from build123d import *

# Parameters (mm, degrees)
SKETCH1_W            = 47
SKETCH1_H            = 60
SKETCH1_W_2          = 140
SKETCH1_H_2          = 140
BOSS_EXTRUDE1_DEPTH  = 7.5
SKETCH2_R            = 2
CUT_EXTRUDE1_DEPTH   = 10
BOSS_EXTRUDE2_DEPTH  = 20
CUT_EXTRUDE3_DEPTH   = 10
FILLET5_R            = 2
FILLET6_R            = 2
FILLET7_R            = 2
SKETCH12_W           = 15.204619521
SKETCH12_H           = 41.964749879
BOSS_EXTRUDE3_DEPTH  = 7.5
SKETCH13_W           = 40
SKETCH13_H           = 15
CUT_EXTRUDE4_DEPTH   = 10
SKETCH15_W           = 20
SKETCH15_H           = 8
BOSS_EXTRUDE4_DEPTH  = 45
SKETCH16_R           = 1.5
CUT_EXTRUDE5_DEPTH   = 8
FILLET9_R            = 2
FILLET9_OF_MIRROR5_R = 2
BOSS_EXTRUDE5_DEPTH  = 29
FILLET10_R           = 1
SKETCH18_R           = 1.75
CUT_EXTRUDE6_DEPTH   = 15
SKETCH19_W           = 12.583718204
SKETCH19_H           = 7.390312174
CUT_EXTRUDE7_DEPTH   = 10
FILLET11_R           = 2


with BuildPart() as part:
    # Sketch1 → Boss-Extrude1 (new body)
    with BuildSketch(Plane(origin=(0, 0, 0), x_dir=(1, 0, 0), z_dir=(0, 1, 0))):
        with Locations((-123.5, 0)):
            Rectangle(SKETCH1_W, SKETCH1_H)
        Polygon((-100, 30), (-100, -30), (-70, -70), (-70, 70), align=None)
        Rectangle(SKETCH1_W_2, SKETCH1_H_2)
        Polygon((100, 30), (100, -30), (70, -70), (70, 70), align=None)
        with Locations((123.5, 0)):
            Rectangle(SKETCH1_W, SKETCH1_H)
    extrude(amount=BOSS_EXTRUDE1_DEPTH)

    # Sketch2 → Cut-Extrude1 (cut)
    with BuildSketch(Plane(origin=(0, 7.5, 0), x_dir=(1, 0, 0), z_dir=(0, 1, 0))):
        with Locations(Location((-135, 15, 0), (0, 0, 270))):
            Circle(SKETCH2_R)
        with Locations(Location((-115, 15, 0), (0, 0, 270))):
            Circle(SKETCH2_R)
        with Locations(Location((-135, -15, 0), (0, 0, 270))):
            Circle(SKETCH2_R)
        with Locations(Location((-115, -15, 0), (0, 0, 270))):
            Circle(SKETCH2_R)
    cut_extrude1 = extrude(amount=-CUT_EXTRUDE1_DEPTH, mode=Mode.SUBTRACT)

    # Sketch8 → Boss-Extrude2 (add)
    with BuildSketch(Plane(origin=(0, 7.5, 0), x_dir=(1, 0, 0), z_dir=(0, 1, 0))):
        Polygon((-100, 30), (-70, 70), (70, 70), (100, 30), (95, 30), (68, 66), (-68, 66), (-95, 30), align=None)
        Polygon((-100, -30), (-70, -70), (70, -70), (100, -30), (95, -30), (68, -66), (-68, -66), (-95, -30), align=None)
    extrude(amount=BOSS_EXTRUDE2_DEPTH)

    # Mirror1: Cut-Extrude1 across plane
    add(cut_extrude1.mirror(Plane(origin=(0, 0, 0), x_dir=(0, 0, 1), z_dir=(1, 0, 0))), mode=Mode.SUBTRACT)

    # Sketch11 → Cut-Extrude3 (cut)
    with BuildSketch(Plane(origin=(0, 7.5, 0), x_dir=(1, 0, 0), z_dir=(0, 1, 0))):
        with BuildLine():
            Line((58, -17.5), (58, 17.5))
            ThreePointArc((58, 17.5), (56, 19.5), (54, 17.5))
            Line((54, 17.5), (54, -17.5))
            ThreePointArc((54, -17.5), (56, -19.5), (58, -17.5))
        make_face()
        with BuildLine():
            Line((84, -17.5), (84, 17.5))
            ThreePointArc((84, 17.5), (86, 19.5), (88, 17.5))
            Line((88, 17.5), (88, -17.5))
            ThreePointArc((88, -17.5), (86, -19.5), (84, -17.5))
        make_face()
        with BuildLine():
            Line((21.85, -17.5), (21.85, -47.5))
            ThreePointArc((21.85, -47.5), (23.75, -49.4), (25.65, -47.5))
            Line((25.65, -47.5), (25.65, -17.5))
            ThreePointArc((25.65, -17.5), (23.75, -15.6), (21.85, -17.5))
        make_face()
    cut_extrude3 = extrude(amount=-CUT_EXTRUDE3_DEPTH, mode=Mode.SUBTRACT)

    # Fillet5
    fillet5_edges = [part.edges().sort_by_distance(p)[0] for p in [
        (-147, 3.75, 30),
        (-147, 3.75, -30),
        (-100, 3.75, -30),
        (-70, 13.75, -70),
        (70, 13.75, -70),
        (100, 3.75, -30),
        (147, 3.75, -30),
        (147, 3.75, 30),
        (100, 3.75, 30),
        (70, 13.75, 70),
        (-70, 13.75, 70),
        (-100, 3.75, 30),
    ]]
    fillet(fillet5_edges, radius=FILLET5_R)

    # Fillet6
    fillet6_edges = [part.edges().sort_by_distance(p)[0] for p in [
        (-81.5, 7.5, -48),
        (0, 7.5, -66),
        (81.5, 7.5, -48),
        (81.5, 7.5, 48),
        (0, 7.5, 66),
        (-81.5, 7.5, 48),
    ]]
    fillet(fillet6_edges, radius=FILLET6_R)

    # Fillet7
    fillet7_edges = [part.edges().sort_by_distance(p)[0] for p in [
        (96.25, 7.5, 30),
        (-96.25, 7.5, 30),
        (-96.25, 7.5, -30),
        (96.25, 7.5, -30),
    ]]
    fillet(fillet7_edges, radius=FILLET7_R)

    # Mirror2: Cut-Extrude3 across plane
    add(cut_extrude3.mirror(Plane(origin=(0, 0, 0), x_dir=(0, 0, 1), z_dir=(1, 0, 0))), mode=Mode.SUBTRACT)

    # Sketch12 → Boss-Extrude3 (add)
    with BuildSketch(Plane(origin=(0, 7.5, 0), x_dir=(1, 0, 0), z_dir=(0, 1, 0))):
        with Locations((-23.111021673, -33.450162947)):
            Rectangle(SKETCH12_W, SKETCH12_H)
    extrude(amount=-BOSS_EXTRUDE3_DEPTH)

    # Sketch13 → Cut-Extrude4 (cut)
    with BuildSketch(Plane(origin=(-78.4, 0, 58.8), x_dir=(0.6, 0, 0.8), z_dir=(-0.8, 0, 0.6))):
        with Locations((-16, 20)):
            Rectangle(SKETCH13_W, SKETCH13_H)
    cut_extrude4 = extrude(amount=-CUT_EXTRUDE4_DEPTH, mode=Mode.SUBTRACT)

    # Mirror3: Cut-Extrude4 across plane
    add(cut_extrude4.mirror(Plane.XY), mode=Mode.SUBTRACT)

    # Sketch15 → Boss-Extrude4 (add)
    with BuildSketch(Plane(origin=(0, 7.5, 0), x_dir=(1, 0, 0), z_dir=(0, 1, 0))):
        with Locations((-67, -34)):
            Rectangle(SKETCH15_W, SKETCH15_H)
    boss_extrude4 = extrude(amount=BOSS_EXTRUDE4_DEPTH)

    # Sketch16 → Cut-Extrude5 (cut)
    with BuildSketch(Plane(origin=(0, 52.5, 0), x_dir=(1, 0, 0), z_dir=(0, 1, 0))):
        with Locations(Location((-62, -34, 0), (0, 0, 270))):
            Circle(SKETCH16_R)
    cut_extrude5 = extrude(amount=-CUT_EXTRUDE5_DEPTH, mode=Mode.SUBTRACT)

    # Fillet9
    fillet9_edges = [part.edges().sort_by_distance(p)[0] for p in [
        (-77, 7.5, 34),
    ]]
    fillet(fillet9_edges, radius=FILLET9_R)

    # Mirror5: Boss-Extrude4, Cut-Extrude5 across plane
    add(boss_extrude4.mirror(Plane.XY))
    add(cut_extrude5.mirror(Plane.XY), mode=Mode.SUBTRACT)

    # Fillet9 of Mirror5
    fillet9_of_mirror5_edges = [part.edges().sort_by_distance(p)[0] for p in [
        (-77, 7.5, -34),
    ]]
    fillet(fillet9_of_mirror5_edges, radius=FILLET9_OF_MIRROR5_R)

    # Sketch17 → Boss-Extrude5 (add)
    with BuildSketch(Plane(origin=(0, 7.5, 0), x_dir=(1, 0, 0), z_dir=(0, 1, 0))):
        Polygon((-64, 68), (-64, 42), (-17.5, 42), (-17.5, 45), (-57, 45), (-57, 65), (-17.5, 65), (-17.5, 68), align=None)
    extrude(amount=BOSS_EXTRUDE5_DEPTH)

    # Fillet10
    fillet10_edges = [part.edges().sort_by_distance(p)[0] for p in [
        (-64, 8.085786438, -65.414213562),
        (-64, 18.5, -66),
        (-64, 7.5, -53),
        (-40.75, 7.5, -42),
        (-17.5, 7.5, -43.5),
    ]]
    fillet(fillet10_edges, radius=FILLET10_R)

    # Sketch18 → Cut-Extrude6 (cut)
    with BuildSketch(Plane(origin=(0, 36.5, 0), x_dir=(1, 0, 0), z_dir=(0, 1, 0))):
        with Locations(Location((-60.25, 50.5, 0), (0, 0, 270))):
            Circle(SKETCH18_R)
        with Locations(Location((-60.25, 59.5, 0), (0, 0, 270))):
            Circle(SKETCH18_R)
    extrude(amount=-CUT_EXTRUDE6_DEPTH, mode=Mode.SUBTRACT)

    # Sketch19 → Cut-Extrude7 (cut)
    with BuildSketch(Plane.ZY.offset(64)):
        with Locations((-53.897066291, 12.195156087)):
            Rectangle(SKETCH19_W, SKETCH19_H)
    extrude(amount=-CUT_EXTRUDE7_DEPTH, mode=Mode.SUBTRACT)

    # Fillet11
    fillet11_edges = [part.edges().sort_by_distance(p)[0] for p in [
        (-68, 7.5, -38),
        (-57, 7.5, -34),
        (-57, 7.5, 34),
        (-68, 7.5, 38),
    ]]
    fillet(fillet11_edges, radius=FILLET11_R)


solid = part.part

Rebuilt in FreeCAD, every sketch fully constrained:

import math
import FreeCAD as App
import Part
import Sketcher
Q = App.Units.Quantity


def edges_at(feature, points):
    """Names of the edges that pass closest to the given points."""
    edges = feature.Shape.Edges
    near = lambda p: min(range(len(edges)), key=lambda i: edges[i].distToShape(Part.Vertex(*p))[0])
    return sorted({f"Edge{near(p) + 1}" for p in points})


def add_polygon(sketch, points):
    """Adds a closed chain of lines whose ends are joined by coincident constraints."""
    first, n = sketch.GeometryCount, len(points)
    for a, b in zip(points, points[1:] + points[:1]):
        sketch.addGeometry(Part.LineSegment(App.Vector(*a, 0), App.Vector(*b, 0)), False)
    for i in range(n):
        sketch.addConstraint(Sketcher.Constraint("Coincident", first + i, 2, first + (i + 1) % n, 1))

doc = App.newDocument("Part")
params = doc.addObject("Spreadsheet::Sheet", "Params")
for row, (alias, value) in enumerate([
    ("sketch1_width", "47 mm"),
    ("sketch1_width2", "140 mm"),
    ("sketch1_height", "60 mm"),
    ("sketch1_length", "50 mm"),
    ("pad1_length", "7.5 mm"),
    ("sketch2_diameter", "4 mm"),
    ("pocket1_length", "10 mm"),
    ("sketch3_width", "5 mm"),
    ("sketch3_width2", "136 mm"),
    ("sketch3_width3", "140 mm"),
    ("sketch3_length", "50 mm"),
    ("sketch3_length2", "45 mm"),
    ("pad2_length", "20 mm"),
    ("sketch4_radius", "2 mm"),
    ("sketch4_radius2", "1.9 mm"),
    ("sketch4_height", "35 mm"),
    ("sketch4_height2", "30 mm"),
    ("pocket2_length", "10 mm"),
    ("fillet_radius", "2 mm"),
    ("fillet2_radius", "2 mm"),
    ("fillet3_radius", "2 mm"),
    ("pad3_length", "7.5 mm"),
    ("sketch6_width", "40 mm"),
    ("sketch6_height", "15 mm"),
    ("pocket3_length", "10 mm"),
    ("sketch7_width", "20 mm"),
    ("sketch7_height", "8 mm"),
    ("pad4_length", "45 mm"),
    ("sketch8_diameter", "3 mm"),
    ("pocket4_length", "8 mm"),
    ("fillet4_radius", "2 mm"),
    ("fillet5_radius", "2 mm"),
    ("sketch9_height", "26 mm"),
    ("sketch9_height2", "3 mm"),
    ("sketch9_width", "46.5 mm"),
    ("sketch9_width2", "39.5 mm"),
    ("pad5_length", "29 mm"),
    ("fillet6_radius", "1 mm"),
    ("sketch10_diameter", "3.5 mm"),
    ("pocket5_length", "15 mm"),
    ("pocket6_length", "10 mm"),
    ("fillet7_radius", "2 mm"),
], start=1):
    params.set(f"A{row}", alias)
    params.set(f"B{row}", "=" + value)
    params.setAlias(f"B{row}", alias)

body = doc.addObject("PartDesign::Body", "Body")

# Sketch on XZ plane
sketch1 = doc.addObject("Sketcher::SketchObject", "Sketch")
body.addObject(sketch1)
sketch1.AttachmentSupport = (doc.XZ_Plane, [""])
sketch1.MapMode = "FlatFace"
add_polygon(sketch1, [(-147, -30), (-147, 30), (-100, 30), (-70, 70), (70, 70), (100, 30), (147, 30), (147, -30), (100, -30), (70, -70), (-70, -70), (-100, -30)])  # lines 0-11
sketch1.addConstraint([
    Sketcher.Constraint("Vertical", 0),
    Sketcher.Constraint("Horizontal", 1),
    Sketcher.Constraint("Horizontal", 3),
    Sketcher.Constraint("Horizontal", 5),
    Sketcher.Constraint("Vertical", 6),
    Sketcher.Constraint("Horizontal", 7),
    Sketcher.Constraint("Horizontal", 9),
    Sketcher.Constraint("Horizontal", 11),
    Sketcher.Constraint("Symmetric", 0, 2, 6, 2, -1, 1),
    Sketcher.Constraint("Symmetric", 2, 2, 8, 2, -1, 1),
    Sketcher.Constraint("Symmetric", 4, 2, 10, 2, -1, 1),
    Sketcher.Constraint("Symmetric", 1, 2, 4, 2, -2),
    Sketcher.Constraint("Parallel", 2, 8),
    Sketcher.Constraint("Parallel", 4, 10),
    Sketcher.Constraint("Vertical", 3, 2, 8, 2),
    Sketcher.Constraint("DistanceX", 1, 1, 1, 2, Q("47 mm")),
    Sketcher.Constraint("DistanceX", 3, 1, 3, 2, Q("140 mm")),
    Sketcher.Constraint("DistanceY", 0, 1, 0, 2, Q("60 mm")),
    Sketcher.Constraint("Distance", 2, Q("50 mm")),
    Sketcher.Constraint("DistanceX", 0, 2, -1, 1, Q("147 mm")),
])
sketch1.setExpression("Constraints[27]", "Params.sketch1_width")
sketch1.setExpression("Constraints[28]", "Params.sketch1_width2")
sketch1.setExpression("Constraints[29]", "Params.sketch1_height")
sketch1.setExpression("Constraints[30]", "Params.sketch1_length")
pad1 = doc.addObject("PartDesign::Pad", "Pad")
body.addObject(pad1)
pad1.Profile = sketch1
pad1.setExpression("Length", "Params.pad1_length")
pad1.Reversed = True

# Sketch on XZ plane
sketch2 = doc.addObject("Sketcher::SketchObject", "Sketch001")
body.addObject(sketch2)
sketch2.AttachmentSupport = (doc.XZ_Plane, [""])
sketch2.MapMode = "FlatFace"
sketch2.AttachmentOffset = App.Placement(App.Vector(0, 0, -7.5), App.Rotation())
sketch2.addGeometry([
    Part.Circle(App.Vector(-135, -15, 0), App.Vector(0, 0, 1), 2),
    Part.Circle(App.Vector(-115, -15, 0), App.Vector(0, 0, 1), 2),
    Part.Circle(App.Vector(-135, 15, 0), App.Vector(0, 0, 1), 2),
    Part.Circle(App.Vector(-115, 15, 0), App.Vector(0, 0, 1), 2),
], False)
sketch2.addConstraint([
    Sketcher.Constraint("Equal", 0, 1),
    Sketcher.Constraint("Equal", 1, 2),
    Sketcher.Constraint("Equal", 2, 3),
    Sketcher.Constraint("Symmetric", 0, 3, 2, 3, -1),
    Sketcher.Constraint("Symmetric", 1, 3, 3, 3, -1),
    Sketcher.Constraint("Horizontal", 0, 3, 1, 3),
    Sketcher.Constraint("Diameter", 0, Q("4 mm")),
    Sketcher.Constraint("DistanceX", 0, 3, -1, 1, Q("135 mm")),
    Sketcher.Constraint("DistanceY", 0, 3, -1, 1, Q("15 mm")),
    Sketcher.Constraint("DistanceX", 1, 3, -1, 1, Q("115 mm")),
])
sketch2.setExpression("Constraints[6]", "Params.sketch2_diameter")
pocket1 = doc.addObject("PartDesign::Pocket", "Pocket")
body.addObject(pocket1)
pocket1.Profile = sketch2
pocket1.setExpression("Length", "Params.pocket1_length")
pocket1.Reversed = True

# Sketch on XZ plane
sketch3 = doc.addObject("Sketcher::SketchObject", "Sketch002")
body.addObject(sketch3)
sketch3.AttachmentSupport = (doc.XZ_Plane, [""])
sketch3.MapMode = "FlatFace"
sketch3.AttachmentOffset = App.Placement(App.Vector(0, 0, -7.5), App.Rotation())
add_polygon(sketch3, [(-70, -70), (-100, -30), (-95, -30), (-68, -66), (68, -66), (95, -30), (100, -30), (70, -70)])  # lines 0-7
add_polygon(sketch3, [(-100, 30), (-70, 70), (70, 70), (100, 30), (95, 30), (68, 66), (-68, 66), (-95, 30)])  # lines 8-15
sketch3.addConstraint([
    Sketcher.Constraint("Horizontal", 1),
    Sketcher.Constraint("Horizontal", 3),
    Sketcher.Constraint("Horizontal", 5),
    Sketcher.Constraint("Horizontal", 7),
    Sketcher.Constraint("Horizontal", 9),
    Sketcher.Constraint("Horizontal", 11),
    Sketcher.Constraint("Horizontal", 13),
    Sketcher.Constraint("Horizontal", 15),
    Sketcher.Constraint("Symmetric", 6, 2, 8, 2, -1, 1),
    Sketcher.Constraint("Symmetric", 0, 2, 10, 2, -1, 1),
    Sketcher.Constraint("Symmetric", 2, 2, 12, 2, -1, 1),
    Sketcher.Constraint("Symmetric", 4, 2, 14, 2, -1, 1),
    Sketcher.Constraint("Symmetric", 1, 2, 4, 2, -2),
    Sketcher.Constraint("Parallel", 0, 2),
    Sketcher.Constraint("Parallel", 4, 6),
    Sketcher.Constraint("Parallel", 6, 8),
    Sketcher.Constraint("Parallel", 2, 10),
    Sketcher.Constraint("Parallel", 10, 12),
    Sketcher.Constraint("Parallel", 8, 14),
    Sketcher.Constraint("Vertical", 7, 2, 8, 2),
    Sketcher.Constraint("Vertical", 5, 2, 10, 2),
    Sketcher.Constraint("DistanceX", 1, 1, 1, 2, Q("5 mm")),
    Sketcher.Constraint("DistanceX", 3, 1, 3, 2, Q("136 mm")),
    Sketcher.Constraint("DistanceX", 7, 2, 7, 1, Q("140 mm")),
    Sketcher.Constraint("Distance", 0, Q("50 mm")),
    Sketcher.Constraint("Distance", 2, Q("45 mm")),
    Sketcher.Constraint("DistanceY", 0, 2, -1, 1, Q("30 mm")),
])
sketch3.setExpression("Constraints[37]", "Params.sketch3_width")
sketch3.setExpression("Constraints[38]", "Params.sketch3_width2")
sketch3.setExpression("Constraints[39]", "Params.sketch3_width3")
sketch3.setExpression("Constraints[40]", "Params.sketch3_length")
sketch3.setExpression("Constraints[41]", "Params.sketch3_length2")
pad2 = doc.addObject("PartDesign::Pad", "Pad001")
body.addObject(pad2)
pad2.Profile = sketch3
pad2.setExpression("Length", "Params.pad2_length")
pad2.Reversed = True
doc.recompute()

mirrored = doc.addObject("PartDesign::Mirrored", "Mirrored")
body.addObject(mirrored)
mirrored.Originals = [pocket1]
mirrored.MirrorPlane = (doc.YZ_Plane, [""])
body.Tip = mirrored

# Sketch on XZ plane
sketch4 = doc.addObject("Sketcher::SketchObject", "Sketch003")
body.addObject(sketch4)
sketch4.AttachmentSupport = (doc.XZ_Plane, [""])
sketch4.MapMode = "FlatFace"
sketch4.AttachmentOffset = App.Placement(App.Vector(0, 0, -7.5), App.Rotation())
sketch4.addGeometry([
    Part.LineSegment(App.Vector(58, 17.5, 0), App.Vector(58, -17.5, 0)),  # 0
    Part.ArcOfCircle(Part.Circle(App.Vector(56, -17.5, 0), App.Vector(0, 0, 1), 2), math.radians(180), math.radians(360)),  # 1
    Part.LineSegment(App.Vector(54, -17.5, 0), App.Vector(54, 17.5, 0)),  # 2
    Part.ArcOfCircle(Part.Circle(App.Vector(56, 17.5, 0), App.Vector(0, 0, 1), 2), math.radians(0), math.radians(180)),  # 3
    Part.LineSegment(App.Vector(84, -17.5, 0), App.Vector(84, 17.5, 0)),  # 4
    Part.ArcOfCircle(Part.Circle(App.Vector(86, 17.5, 0), App.Vector(0, 0, 1), 2), math.radians(0), math.radians(180)),  # 5
    Part.LineSegment(App.Vector(88, 17.5, 0), App.Vector(88, -17.5, 0)),  # 6
    Part.ArcOfCircle(Part.Circle(App.Vector(86, -17.5, 0), App.Vector(0, 0, 1), 2), math.radians(180), math.radians(360)),  # 7
    Part.LineSegment(App.Vector(21.9, 17.5, 0), App.Vector(21.9, 47.5, 0)),  # 8
    Part.ArcOfCircle(Part.Circle(App.Vector(23.8, 47.5, 0), App.Vector(0, 0, 1), 1.9), math.radians(0), math.radians(180)),  # 9
    Part.LineSegment(App.Vector(25.6, 47.5, 0), App.Vector(25.6, 17.5, 0)),  # 10
    Part.ArcOfCircle(Part.Circle(App.Vector(23.8, 17.5, 0), App.Vector(0, 0, 1), 1.9), math.radians(180), math.radians(360)),  # 11
], False)
sketch4.addConstraint([
    Sketcher.Constraint("Tangent", 0, 2, 1, 2),
    Sketcher.Constraint("Tangent", 1, 1, 2, 1),
    Sketcher.Constraint("Tangent", 2, 2, 3, 2),
    Sketcher.Constraint("Tangent", 3, 1, 0, 1),
    Sketcher.Constraint("Tangent", 4, 2, 5, 2),
    Sketcher.Constraint("Tangent", 5, 1, 6, 1),
    Sketcher.Constraint("Tangent", 6, 2, 7, 2),
    Sketcher.Constraint("Tangent", 7, 1, 4, 1),
    Sketcher.Constraint("Tangent", 8, 2, 9, 2),
    Sketcher.Constraint("Tangent", 9, 1, 10, 1),
    Sketcher.Constraint("Tangent", 10, 2, 11, 2),
    Sketcher.Constraint("Tangent", 11, 1, 8, 1),
    Sketcher.Constraint("Vertical", 0),
    Sketcher.Constraint("Vertical", 2),
    Sketcher.Constraint("Vertical", 4),
    Sketcher.Constraint("Vertical", 6),
    Sketcher.Constraint("Vertical", 8),
    Sketcher.Constraint("Vertical", 10),
    Sketcher.Constraint("Equal", 3, 5),
    Sketcher.Constraint("Horizontal", 3, 3, 5, 3),
    Sketcher.Constraint("Horizontal", 1, 3, 7, 3),
    Sketcher.Constraint("Horizontal", 5, 3, 11, 3),
    Sketcher.Constraint("Radius", 1, Q("2 mm")),
    Sketcher.Constraint("Radius", 9, Q("1.9 mm")),
    Sketcher.Constraint("DistanceY", 0, 2, 0, 1, Q("35 mm")),
    Sketcher.Constraint("DistanceY", 8, 1, 8, 2, Q("30 mm")),
    Sketcher.Constraint("DistanceX", -1, 1, 1, 3, Q("56 mm")),
    Sketcher.Constraint("DistanceX", -1, 1, 5, 3, Q("86 mm")),
    Sketcher.Constraint("DistanceY", 1, 3, -1, 1, Q("17.5 mm")),
    Sketcher.Constraint("DistanceX", -1, 1, 9, 3, Q("23.75 mm")),
])
sketch4.setExpression("Constraints[22]", "Params.sketch4_radius")
sketch4.setExpression("Constraints[23]", "Params.sketch4_radius2")
sketch4.setExpression("Constraints[24]", "Params.sketch4_height")
sketch4.setExpression("Constraints[25]", "Params.sketch4_height2")
pocket2 = doc.addObject("PartDesign::Pocket", "Pocket001")
body.addObject(pocket2)
pocket2.Profile = sketch4
pocket2.setExpression("Length", "Params.pocket2_length")
pocket2.Reversed = True
doc.recompute()

fillet = doc.addObject("PartDesign::Fillet", "Fillet")
body.addObject(fillet)
fillet.Base = (pocket2, edges_at(pocket2, [
    (-147, 3.75, 30),
    (-147, 3.75, -30),
    (-100, 3.75, -30),
    (-70, 13.75, -70),
    (70, 13.75, -70),
    (100, 3.75, -30),
    (147, 3.75, -30),
    (147, 3.75, 30),
    (100, 3.75, 30),
    (70, 13.75, 70),
    (-70, 13.75, 70),
    (-100, 3.75, 30),
]))
fillet.setExpression("Radius", "Params.fillet_radius")
doc.recompute()

fillet2 = doc.addObject("PartDesign::Fillet", "Fillet001")
body.addObject(fillet2)
fillet2.Base = (fillet, edges_at(fillet, [
    (-81.5, 7.5, -48),
    (0, 7.5, -66),
    (81.5, 7.5, -48),
    (81.5, 7.5, 48),
    (0, 7.5, 66),
    (-81.5, 7.5, 48),
]))
fillet2.setExpression("Radius", "Params.fillet2_radius")
doc.recompute()

fillet3 = doc.addObject("PartDesign::Fillet", "Fillet002")
body.addObject(fillet3)
fillet3.Base = (fillet2, edges_at(fillet2, [
    (96.25, 7.5, 30),
    (-96.25, 7.5, 30),
    (-96.25, 7.5, -30),
    (96.25, 7.5, -30),
]))
fillet3.setExpression("Radius", "Params.fillet3_radius")
doc.recompute()

mirrored2 = doc.addObject("PartDesign::Mirrored", "Mirrored001")
body.addObject(mirrored2)
mirrored2.Originals = [pocket2]
mirrored2.MirrorPlane = (doc.YZ_Plane, [""])
body.Tip = mirrored2

# Sketch on XZ plane
sketch5 = doc.addObject("Sketcher::SketchObject", "Sketch004")
body.addObject(sketch5)
sketch5.AttachmentSupport = (doc.XZ_Plane, [""])
sketch5.MapMode = "FlatFace"
sketch5.AttachmentOffset = App.Placement(App.Vector(0, 0, -7.5), App.Rotation())
add_polygon(sketch5, [(-31, 12), (-31, 54), (-16, 54), (-16, 12)])  # lines 0-3
sketch5.addConstraint([
    Sketcher.Constraint("Vertical", 0),
    Sketcher.Constraint("Horizontal", 1),
    Sketcher.Constraint("Vertical", 2),
    Sketcher.Constraint("Horizontal", 3),
    Sketcher.Constraint("DistanceX", 1, 1, 1, 2, Q("15.20462 mm")),
    Sketcher.Constraint("DistanceY", 0, 1, 0, 2, Q("41.96475 mm")),
    Sketcher.Constraint("DistanceX", 0, 2, -1, 1, Q("30.713331 mm")),
    Sketcher.Constraint("DistanceY", -1, 1, 2, 2, Q("12.467788 mm")),
])
pad3 = doc.addObject("PartDesign::Pad", "Pad002")
body.addObject(pad3)
pad3.Profile = sketch5
pad3.setExpression("Length", "Params.pad3_length")

# Sketch on an angled plane
sketch6 = doc.addObject("Sketcher::SketchObject", "Sketch005")
body.addObject(sketch6)
sketch6.Placement = App.Placement(App.Vector(-78.4, 0, 58.8), App.Rotation(App.Vector(0.6, 0, 0.8), App.Vector(0, 1, 0), App.Vector(-0.8, 0, 0.6), "ZXY"))
add_polygon(sketch6, [(-36, 28), (-36, 12), (4, 12), (4, 28)])  # lines 0-3
sketch6.addConstraint([
    Sketcher.Constraint("Vertical", 0),
    Sketcher.Constraint("Horizontal", 1),
    Sketcher.Constraint("Vertical", 2),
    Sketcher.Constraint("Horizontal", 3),
    Sketcher.Constraint("DistanceX", 1, 1, 1, 2, Q("40 mm")),
    Sketcher.Constraint("DistanceY", 0, 2, 0, 1, Q("15 mm")),
    Sketcher.Constraint("DistanceX", 0, 2, -1, 1, Q("36 mm")),
    Sketcher.Constraint("DistanceY", -1, 1, 0, 2, Q("12.5 mm")),
])
sketch6.setExpression("Constraints[8]", "Params.sketch6_width")
sketch6.setExpression("Constraints[9]", "Params.sketch6_height")
pocket3 = doc.addObject("PartDesign::Pocket", "Pocket002")
body.addObject(pocket3)
pocket3.Profile = sketch6
pocket3.setExpression("Length", "Params.pocket3_length")
doc.recompute()

mirrored3 = doc.addObject("PartDesign::Mirrored", "Mirrored002")
body.addObject(mirrored3)
mirrored3.Originals = [pocket3]
mirrored3.MirrorPlane = (doc.XY_Plane, [""])
body.Tip = mirrored3

# Sketch on XZ plane
sketch7 = doc.addObject("Sketcher::SketchObject", "Sketch006")
body.addObject(sketch7)
sketch7.AttachmentSupport = (doc.XZ_Plane, [""])
sketch7.MapMode = "FlatFace"
sketch7.AttachmentOffset = App.Placement(App.Vector(0, 0, -7.5), App.Rotation())
add_polygon(sketch7, [(-77, 30), (-77, 38), (-57, 38), (-57, 30)])  # lines 0-3
sketch7.addConstraint([
    Sketcher.Constraint("Vertical", 0),
    Sketcher.Constraint("Horizontal", 1),
    Sketcher.Constraint("Vertical", 2),
    Sketcher.Constraint("Horizontal", 3),
    Sketcher.Constraint("DistanceX", 1, 1, 1, 2, Q("20 mm")),
    Sketcher.Constraint("DistanceY", 0, 1, 0, 2, Q("8 mm")),
    Sketcher.Constraint("DistanceX", 0, 2, -1, 1, Q("77 mm")),
    Sketcher.Constraint("DistanceY", -1, 1, 0, 2, Q("38 mm")),
])
sketch7.setExpression("Constraints[8]", "Params.sketch7_width")
sketch7.setExpression("Constraints[9]", "Params.sketch7_height")
pad4 = doc.addObject("PartDesign::Pad", "Pad003")
body.addObject(pad4)
pad4.Profile = sketch7
pad4.setExpression("Length", "Params.pad4_length")
pad4.Reversed = True

# Sketch on XZ plane
sketch8 = doc.addObject("Sketcher::SketchObject", "Sketch007")
body.addObject(sketch8)
sketch8.AttachmentSupport = (doc.XZ_Plane, [""])
sketch8.MapMode = "FlatFace"
sketch8.AttachmentOffset = App.Placement(App.Vector(0, 0, -52.5), App.Rotation())
sketch8.addGeometry(Part.Circle(App.Vector(-62, 34, 0), App.Vector(0, 0, 1), 1.5), False)
sketch8.addConstraint([
    Sketcher.Constraint("Diameter", 0, Q("3 mm")),
    Sketcher.Constraint("DistanceX", 0, 3, -1, 1, Q("62 mm")),
    Sketcher.Constraint("DistanceY", -1, 1, 0, 3, Q("34 mm")),
])
sketch8.setExpression("Constraints[0]", "Params.sketch8_diameter")
pocket4 = doc.addObject("PartDesign::Pocket", "Pocket003")
body.addObject(pocket4)
pocket4.Profile = sketch8
pocket4.setExpression("Length", "Params.pocket4_length")
pocket4.Reversed = True
doc.recompute()

fillet4 = doc.addObject("PartDesign::Fillet", "Fillet003")
body.addObject(fillet4)
fillet4.Base = (pocket4, edges_at(pocket4, [(-77, 7.5, 34)]))
fillet4.setExpression("Radius", "Params.fillet4_radius")
doc.recompute()

mirrored4 = doc.addObject("PartDesign::Mirrored", "Mirrored003")
body.addObject(mirrored4)
mirrored4.Originals = [pad4, pocket4]
mirrored4.MirrorPlane = (doc.XY_Plane, [""])
body.Tip = mirrored4
doc.recompute()

fillet5 = doc.addObject("PartDesign::Fillet", "Fillet004")
body.addObject(fillet5)
fillet5.Base = (mirrored4, edges_at(mirrored4, [(-77, 7.5, -34)]))
fillet5.setExpression("Radius", "Params.fillet5_radius")

# Sketch on XZ plane
sketch9 = doc.addObject("Sketcher::SketchObject", "Sketch008")
body.addObject(sketch9)
sketch9.AttachmentSupport = (doc.XZ_Plane, [""])
sketch9.MapMode = "FlatFace"
sketch9.AttachmentOffset = App.Placement(App.Vector(0, 0, -7.5), App.Rotation())
add_polygon(sketch9, [(-64, -68), (-64, -42), (-17.5, -42), (-17.5, -45), (-57, -45), (-57, -65), (-17.5, -65), (-17.5, -68)])  # lines 0-7
sketch9.addConstraint([
    Sketcher.Constraint("Vertical", 0),
    Sketcher.Constraint("Horizontal", 1),
    Sketcher.Constraint("Vertical", 2),
    Sketcher.Constraint("Horizontal", 3),
    Sketcher.Constraint("Vertical", 4),
    Sketcher.Constraint("Horizontal", 5),
    Sketcher.Constraint("Vertical", 6),
    Sketcher.Constraint("Horizontal", 7),
    Sketcher.Constraint("Vertical", 2, 2, 5, 2),
    Sketcher.Constraint("Equal", 2, 6),
    Sketcher.Constraint("DistanceY", 0, 1, 0, 2, Q("26 mm")),
    Sketcher.Constraint("DistanceY", 2, 2, 2, 1, Q("3 mm")),
    Sketcher.Constraint("DistanceX", 1, 1, 1, 2, Q("46.5 mm")),
    Sketcher.Constraint("DistanceX", 3, 2, 3, 1, Q("39.5 mm")),
    Sketcher.Constraint("DistanceX", 0, 2, -1, 1, Q("64 mm")),
    Sketcher.Constraint("DistanceY", 0, 2, -1, 1, Q("42 mm")),
])
sketch9.setExpression("Constraints[18]", "Params.sketch9_height")
sketch9.setExpression("Constraints[19]", "Params.sketch9_height2")
sketch9.setExpression("Constraints[20]", "Params.sketch9_width")
sketch9.setExpression("Constraints[21]", "Params.sketch9_width2")
pad5 = doc.addObject("PartDesign::Pad", "Pad004")
body.addObject(pad5)
pad5.Profile = sketch9
pad5.setExpression("Length", "Params.pad5_length")
pad5.Reversed = True
doc.recompute()

fillet6 = doc.addObject("PartDesign::Fillet", "Fillet005")
body.addObject(fillet6)
fillet6.Base = (pad5, edges_at(pad5, [
    (-64, 8.086, -65.414),
    (-64, 18.5, -66),
    (-64, 7.5, -53),
    (-40.75, 7.5, -42),
    (-17.5, 7.5, -43.5),
]))
fillet6.setExpression("Radius", "Params.fillet6_radius")

# Sketch on XZ plane
sketch10 = doc.addObject("Sketcher::SketchObject", "Sketch009")
body.addObject(sketch10)
sketch10.AttachmentSupport = (doc.XZ_Plane, [""])
sketch10.MapMode = "FlatFace"
sketch10.AttachmentOffset = App.Placement(App.Vector(0, 0, -36.5), App.Rotation())
sketch10.addGeometry([
    Part.Circle(App.Vector(-60.2, -50.5, 0), App.Vector(0, 0, 1), 1.8),
    Part.Circle(App.Vector(-60.2, -59.5, 0), App.Vector(0, 0, 1), 1.8),
], False)
sketch10.addConstraint([
    Sketcher.Constraint("Equal", 0, 1),
    Sketcher.Constraint("Vertical", 0, 3, 1, 3),
    Sketcher.Constraint("Diameter", 0, Q("3.5 mm")),
    Sketcher.Constraint("DistanceY", 1, 3, 0, 3, Q("9 mm")),
    Sketcher.Constraint("DistanceY", 0, 3, -1, 1, Q("50.5 mm")),
    Sketcher.Constraint("DistanceX", 0, 3, -1, 1, Q("60.25 mm")),
])
sketch10.setExpression("Constraints[2]", "Params.sketch10_diameter")
pocket5 = doc.addObject("PartDesign::Pocket", "Pocket004")
body.addObject(pocket5)
pocket5.Profile = sketch10
pocket5.setExpression("Length", "Params.pocket5_length")
pocket5.Reversed = True

# Sketch on YZ plane
sketch11 = doc.addObject("Sketcher::SketchObject", "Sketch010")
body.addObject(sketch11)
sketch11.AttachmentSupport = (doc.YZ_Plane, [""])
sketch11.MapMode = "FlatFace"
sketch11.AttachmentOffset = App.Placement(App.Vector(0, 0, -64), App.Rotation())
add_polygon(sketch11, [(16, -60), (8, -60), (8, -48), (16, -48)])  # lines 0-3
sketch11.addConstraint([
    Sketcher.Constraint("Horizontal", 0),
    Sketcher.Constraint("Vertical", 1),
    Sketcher.Constraint("Horizontal", 2),
    Sketcher.Constraint("Vertical", 3),
    Sketcher.Constraint("DistanceX", -1, 1, 0, 2, Q("8.5 mm")),
    Sketcher.Constraint("DistanceY", 1, 1, 1, 2, Q("12.583718 mm")),
    Sketcher.Constraint("DistanceX", 0, 2, 0, 1, Q("7.390312 mm")),
    Sketcher.Constraint("DistanceY", 0, 2, -1, 1, Q("60.188925 mm")),
])
pocket6 = doc.addObject("PartDesign::Pocket", "Pocket005")
body.addObject(pocket6)
pocket6.Profile = sketch11
pocket6.setExpression("Length", "Params.pocket6_length")
pocket6.Reversed = True
doc.recompute()

fillet7 = doc.addObject("PartDesign::Fillet", "Fillet006")
body.addObject(fillet7)
fillet7.Base = (pocket6, edges_at(pocket6, [
    (-68, 7.5, -38),
    (-57, 7.5, -34),
    (-57, 7.5, 34),
    (-68, 7.5, 38),
]))
fillet7.setExpression("Radius", "Params.fillet7_radius")

doc.recompute()
